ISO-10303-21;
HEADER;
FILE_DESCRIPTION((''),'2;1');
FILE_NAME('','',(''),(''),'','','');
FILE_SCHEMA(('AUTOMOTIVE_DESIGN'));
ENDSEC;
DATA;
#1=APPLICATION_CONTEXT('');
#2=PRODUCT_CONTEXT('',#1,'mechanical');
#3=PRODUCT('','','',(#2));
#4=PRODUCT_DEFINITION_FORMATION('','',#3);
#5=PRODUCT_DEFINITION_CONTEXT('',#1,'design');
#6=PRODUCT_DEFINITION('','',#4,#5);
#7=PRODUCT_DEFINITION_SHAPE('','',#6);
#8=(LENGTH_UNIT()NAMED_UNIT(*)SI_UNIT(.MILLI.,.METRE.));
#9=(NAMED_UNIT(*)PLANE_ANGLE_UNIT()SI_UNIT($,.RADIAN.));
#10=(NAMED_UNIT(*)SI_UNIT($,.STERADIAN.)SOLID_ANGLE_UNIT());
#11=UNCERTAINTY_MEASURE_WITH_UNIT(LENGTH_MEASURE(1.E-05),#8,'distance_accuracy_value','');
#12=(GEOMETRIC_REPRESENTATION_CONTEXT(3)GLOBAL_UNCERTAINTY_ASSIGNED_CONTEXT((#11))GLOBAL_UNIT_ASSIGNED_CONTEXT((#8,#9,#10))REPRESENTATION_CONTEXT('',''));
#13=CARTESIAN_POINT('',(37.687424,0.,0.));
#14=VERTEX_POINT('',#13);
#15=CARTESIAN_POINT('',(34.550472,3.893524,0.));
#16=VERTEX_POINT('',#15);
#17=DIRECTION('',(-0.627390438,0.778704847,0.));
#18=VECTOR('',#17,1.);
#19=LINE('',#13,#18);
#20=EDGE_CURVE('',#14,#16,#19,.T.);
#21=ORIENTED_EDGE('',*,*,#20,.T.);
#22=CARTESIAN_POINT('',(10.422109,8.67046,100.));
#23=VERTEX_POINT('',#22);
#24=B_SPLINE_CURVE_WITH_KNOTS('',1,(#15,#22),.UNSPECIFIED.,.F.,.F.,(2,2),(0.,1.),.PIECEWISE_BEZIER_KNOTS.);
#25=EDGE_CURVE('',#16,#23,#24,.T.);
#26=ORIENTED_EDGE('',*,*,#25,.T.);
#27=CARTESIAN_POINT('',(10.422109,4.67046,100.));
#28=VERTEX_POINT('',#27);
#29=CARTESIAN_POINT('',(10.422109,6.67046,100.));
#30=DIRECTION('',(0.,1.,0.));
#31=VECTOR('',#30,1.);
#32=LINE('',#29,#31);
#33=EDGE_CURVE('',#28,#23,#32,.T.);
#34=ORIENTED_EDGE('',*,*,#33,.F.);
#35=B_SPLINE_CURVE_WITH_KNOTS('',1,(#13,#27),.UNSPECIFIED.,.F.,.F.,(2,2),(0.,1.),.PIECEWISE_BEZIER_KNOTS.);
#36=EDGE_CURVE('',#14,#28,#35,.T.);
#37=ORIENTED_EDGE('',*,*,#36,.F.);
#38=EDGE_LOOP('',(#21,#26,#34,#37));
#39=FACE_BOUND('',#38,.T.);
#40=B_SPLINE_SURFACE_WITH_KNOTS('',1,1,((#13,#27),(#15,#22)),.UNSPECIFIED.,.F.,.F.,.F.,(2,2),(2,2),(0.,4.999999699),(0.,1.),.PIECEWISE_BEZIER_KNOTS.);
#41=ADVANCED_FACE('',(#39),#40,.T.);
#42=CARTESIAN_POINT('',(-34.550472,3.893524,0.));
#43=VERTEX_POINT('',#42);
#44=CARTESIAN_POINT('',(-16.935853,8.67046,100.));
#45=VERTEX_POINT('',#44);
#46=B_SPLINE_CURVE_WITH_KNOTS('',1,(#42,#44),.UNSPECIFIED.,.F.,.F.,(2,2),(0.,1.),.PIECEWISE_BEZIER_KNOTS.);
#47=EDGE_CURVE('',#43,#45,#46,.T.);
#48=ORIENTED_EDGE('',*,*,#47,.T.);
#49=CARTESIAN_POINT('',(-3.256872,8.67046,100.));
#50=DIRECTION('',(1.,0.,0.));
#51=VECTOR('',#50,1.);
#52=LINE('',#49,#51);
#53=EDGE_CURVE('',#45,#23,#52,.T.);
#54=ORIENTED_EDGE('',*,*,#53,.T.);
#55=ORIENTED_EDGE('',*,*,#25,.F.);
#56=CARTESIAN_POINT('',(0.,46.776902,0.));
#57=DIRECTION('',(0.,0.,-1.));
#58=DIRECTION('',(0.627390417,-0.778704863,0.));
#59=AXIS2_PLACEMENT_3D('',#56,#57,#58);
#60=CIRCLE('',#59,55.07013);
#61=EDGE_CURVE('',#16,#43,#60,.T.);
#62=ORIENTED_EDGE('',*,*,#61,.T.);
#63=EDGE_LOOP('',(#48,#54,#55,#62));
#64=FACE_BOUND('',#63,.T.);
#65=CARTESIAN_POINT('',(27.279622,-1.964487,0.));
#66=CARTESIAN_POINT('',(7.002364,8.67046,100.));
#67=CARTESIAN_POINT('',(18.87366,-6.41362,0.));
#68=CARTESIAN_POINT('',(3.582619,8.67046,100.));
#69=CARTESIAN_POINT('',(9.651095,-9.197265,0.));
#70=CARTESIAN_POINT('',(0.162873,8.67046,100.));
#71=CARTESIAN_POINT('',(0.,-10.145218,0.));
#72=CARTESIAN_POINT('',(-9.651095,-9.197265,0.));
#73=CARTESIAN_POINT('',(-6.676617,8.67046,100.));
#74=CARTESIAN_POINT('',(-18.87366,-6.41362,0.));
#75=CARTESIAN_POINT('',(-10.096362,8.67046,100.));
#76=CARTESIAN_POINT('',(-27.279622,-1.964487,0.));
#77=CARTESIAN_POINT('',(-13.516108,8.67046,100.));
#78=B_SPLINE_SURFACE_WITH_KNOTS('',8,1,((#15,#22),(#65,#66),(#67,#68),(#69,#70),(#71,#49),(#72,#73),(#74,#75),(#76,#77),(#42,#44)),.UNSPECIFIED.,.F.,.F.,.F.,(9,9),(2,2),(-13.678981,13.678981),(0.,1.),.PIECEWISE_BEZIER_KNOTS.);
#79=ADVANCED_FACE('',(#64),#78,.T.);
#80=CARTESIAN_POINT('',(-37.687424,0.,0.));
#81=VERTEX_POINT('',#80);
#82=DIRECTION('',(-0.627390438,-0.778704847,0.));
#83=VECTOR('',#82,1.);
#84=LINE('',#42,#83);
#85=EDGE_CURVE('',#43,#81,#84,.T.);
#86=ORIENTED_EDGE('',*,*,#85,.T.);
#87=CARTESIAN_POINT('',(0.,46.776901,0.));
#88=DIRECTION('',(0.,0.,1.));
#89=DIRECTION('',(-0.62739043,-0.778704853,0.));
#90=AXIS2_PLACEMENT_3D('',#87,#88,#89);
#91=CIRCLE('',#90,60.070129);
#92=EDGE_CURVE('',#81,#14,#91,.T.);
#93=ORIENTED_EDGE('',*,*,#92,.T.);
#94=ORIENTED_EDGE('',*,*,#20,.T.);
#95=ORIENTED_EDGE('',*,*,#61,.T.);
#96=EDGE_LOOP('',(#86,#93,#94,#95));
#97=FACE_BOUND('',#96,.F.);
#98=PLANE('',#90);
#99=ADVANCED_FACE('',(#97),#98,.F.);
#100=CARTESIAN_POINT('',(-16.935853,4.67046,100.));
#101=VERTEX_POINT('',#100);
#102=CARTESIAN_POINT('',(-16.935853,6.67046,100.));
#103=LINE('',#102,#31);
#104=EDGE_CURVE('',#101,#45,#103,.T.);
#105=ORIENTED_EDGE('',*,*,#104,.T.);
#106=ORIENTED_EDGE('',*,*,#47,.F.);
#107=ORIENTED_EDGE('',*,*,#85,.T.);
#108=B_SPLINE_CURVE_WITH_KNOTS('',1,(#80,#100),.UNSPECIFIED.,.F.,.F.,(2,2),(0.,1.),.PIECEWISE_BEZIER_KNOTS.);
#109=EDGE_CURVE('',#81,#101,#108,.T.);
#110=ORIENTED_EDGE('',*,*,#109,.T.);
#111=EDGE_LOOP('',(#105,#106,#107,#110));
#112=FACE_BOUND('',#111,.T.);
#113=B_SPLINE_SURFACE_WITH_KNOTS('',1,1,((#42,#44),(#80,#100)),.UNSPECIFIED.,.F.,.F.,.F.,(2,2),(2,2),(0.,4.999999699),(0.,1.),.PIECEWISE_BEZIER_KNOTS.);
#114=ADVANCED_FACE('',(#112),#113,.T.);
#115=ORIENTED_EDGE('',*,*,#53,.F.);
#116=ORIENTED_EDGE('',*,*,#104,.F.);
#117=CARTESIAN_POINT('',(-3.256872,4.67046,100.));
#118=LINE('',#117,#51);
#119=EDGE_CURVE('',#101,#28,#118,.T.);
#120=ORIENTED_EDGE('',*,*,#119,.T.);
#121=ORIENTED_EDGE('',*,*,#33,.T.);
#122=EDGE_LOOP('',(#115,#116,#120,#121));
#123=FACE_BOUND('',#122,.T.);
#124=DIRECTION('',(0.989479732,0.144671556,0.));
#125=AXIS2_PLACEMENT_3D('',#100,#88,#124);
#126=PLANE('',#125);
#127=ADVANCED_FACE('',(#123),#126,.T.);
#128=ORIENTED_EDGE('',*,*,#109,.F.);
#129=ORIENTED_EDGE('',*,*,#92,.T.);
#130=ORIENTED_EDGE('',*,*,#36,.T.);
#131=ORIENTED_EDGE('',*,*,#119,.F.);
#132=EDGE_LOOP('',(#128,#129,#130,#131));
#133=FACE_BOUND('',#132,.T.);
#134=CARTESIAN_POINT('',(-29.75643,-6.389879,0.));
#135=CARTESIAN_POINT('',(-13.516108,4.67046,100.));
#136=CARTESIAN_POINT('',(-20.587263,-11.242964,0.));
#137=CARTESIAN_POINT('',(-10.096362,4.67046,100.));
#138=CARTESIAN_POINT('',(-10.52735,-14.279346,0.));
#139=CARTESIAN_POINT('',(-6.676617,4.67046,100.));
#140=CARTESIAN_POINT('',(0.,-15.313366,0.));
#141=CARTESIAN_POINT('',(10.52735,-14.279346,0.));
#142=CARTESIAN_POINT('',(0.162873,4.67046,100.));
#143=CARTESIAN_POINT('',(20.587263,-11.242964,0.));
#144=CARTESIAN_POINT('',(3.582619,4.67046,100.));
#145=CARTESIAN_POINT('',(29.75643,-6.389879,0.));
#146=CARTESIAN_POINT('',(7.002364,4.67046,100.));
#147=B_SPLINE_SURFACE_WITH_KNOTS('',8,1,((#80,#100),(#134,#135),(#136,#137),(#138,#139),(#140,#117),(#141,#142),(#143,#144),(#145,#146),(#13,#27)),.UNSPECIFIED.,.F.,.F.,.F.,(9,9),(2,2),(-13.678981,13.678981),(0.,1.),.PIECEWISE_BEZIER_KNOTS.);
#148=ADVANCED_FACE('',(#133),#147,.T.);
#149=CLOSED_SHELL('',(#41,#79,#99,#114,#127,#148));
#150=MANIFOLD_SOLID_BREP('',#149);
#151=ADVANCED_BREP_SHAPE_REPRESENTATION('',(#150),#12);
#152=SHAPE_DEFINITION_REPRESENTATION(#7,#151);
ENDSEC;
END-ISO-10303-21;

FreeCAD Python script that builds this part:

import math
import FreeCAD as App
import Part
import Sketcher

V = App.Vector
Q = App.Units.Quantity

doc = App.newDocument("Part")
body = doc.addObject("PartDesign::Body", "Body")

# Sketch on XY plane
sketch1 = body.newObject("Sketcher::SketchObject", "Sketch")
sketch1.AttachmentSupport = (doc.getObject("XY_Plane"), [""])
sketch1.MapMode = "FlatFace"
sketch1.addGeometry(Part.LineSegment(V(-34.6, 3.9, 0), V(-37.7, 0, 0)), False)
sketch1.addGeometry(Part.ArcOfCircle(Part.Circle(V(0, 46.8, 0), V(0, 0, 1), 60.1), math.radians(-129), math.radians(-51)), False)
sketch1.addGeometry(Part.LineSegment(V(37.7, 0, 0), V(34.6, 3.9, 0)), False)
sketch1.addGeometry(Part.ArcOfCircle(Part.Circle(V(0, 46.8, 0), V(0, 0, 1), 55.1), math.radians(-129), math.radians(-51)), False)
sketch1.addConstraint(Sketcher.Constraint("Coincident", 0, 2, 1, 1))
sketch1.addConstraint(Sketcher.Constraint("Coincident", 1, 2, 2, 1))
sketch1.addConstraint(Sketcher.Constraint("Coincident", 2, 2, 3, 2))
sketch1.addConstraint(Sketcher.Constraint("Coincident", 3, 1, 0, 1))
sketch1.addConstraint(Sketcher.Constraint("Coincident", 3, 3, 1, 3))
sketch1.addConstraint(Sketcher.Constraint("Symmetric", 0, 2, 1, 2, -1, 1))
sketch1.addConstraint(Sketcher.Constraint("Symmetric", 2, 2, 3, 1, -2))
sketch1.addConstraint(Sketcher.Constraint("Distance", 0, Q("5 mm")))
sketch1.addConstraint(Sketcher.Constraint("Radius", 1, Q("60.070129 mm")))
sketch1.addConstraint(Sketcher.Constraint("DistanceY", -1, 1, 1, 3, Q("46.776901 mm")))
sketch1.addConstraint(Sketcher.Constraint("DistanceX", 2, 2, 1, 2, Q("3.136952 mm")))

# Sketch on XY plane
sketch2 = body.newObject("Sketcher::SketchObject", "Sketch001")
sketch2.AttachmentSupport = (doc.getObject("XY_Plane"), [""])
sketch2.MapMode = "FlatFace"
sketch2.AttachmentOffset = App.Placement(V(0, 0, 100), App.Rotation())
sketch2.addGeometry(Part.LineSegment(V(-16.9, 8.7, 0), V(-16.9, 4.7, 0)), False)
sketch2.addGeometry(Part.LineSegment(V(-16.9, 4.7, 0), V(10.4, 4.7, 0)), False)
sketch2.addGeometry(Part.LineSegment(V(10.4, 4.7, 0), V(10.4, 8.7, 0)), False)
sketch2.addGeometry(Part.LineSegment(V(10.4, 8.7, 0), V(-16.9, 8.7, 0)), False)
sketch2.addConstraint(Sketcher.Constraint("Coincident", 0, 2, 1, 1))
sketch2.addConstraint(Sketcher.Constraint("Coincident", 1, 2, 2, 1))
sketch2.addConstraint(Sketcher.Constraint("Coincident", 2, 2, 3, 1))
sketch2.addConstraint(Sketcher.Constraint("Coincident", 3, 2, 0, 1))
sketch2.addConstraint(Sketcher.Constraint("Vertical", 0))
sketch2.addConstraint(Sketcher.Constraint("Horizontal", 1))
sketch2.addConstraint(Sketcher.Constraint("Vertical", 2))
sketch2.addConstraint(Sketcher.Constraint("Horizontal", 3))
sketch2.addConstraint(Sketcher.Constraint("DistanceY", 0, 2, 0, 1, Q("4 mm")))
sketch2.addConstraint(Sketcher.Constraint("DistanceX", 1, 1, 1, 2, Q("27.357962 mm")))
sketch2.addConstraint(Sketcher.Constraint("DistanceY", -1, 1, 0, 2, Q("4.67046 mm")))
sketch2.addConstraint(Sketcher.Constraint("DistanceX", -1, 1, 1, 2, Q("10.422109 mm")))

additiveloft = body.newObject("PartDesign::AdditiveLoft", "AdditiveLoft")
additiveloft.Profile = sketch1
additiveloft.Sections = [sketch2]

doc.recompute()
